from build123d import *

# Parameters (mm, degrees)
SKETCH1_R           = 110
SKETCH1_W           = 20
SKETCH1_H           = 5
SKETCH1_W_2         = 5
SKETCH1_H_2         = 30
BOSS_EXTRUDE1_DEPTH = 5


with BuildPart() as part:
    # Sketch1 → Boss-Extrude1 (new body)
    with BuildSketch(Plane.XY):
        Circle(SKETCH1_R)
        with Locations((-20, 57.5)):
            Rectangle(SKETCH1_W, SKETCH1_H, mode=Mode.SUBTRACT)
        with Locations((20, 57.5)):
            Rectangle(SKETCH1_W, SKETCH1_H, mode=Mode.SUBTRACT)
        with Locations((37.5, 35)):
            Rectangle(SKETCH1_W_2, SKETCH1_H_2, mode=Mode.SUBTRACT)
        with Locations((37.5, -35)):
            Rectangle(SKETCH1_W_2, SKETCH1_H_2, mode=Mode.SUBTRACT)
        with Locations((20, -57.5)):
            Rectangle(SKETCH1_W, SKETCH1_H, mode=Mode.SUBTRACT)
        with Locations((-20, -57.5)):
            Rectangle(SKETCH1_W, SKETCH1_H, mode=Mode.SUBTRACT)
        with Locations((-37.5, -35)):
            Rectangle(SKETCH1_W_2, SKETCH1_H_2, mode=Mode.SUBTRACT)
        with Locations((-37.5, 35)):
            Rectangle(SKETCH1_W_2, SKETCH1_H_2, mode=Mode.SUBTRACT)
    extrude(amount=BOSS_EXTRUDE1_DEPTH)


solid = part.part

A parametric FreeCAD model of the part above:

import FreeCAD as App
import Part
import Sketcher

V = App.Vector
Q = App.Units.Quantity

doc = App.newDocument("Part")
body = doc.addObject("PartDesign::Body", "Body")

# Sketch on XY plane
sketch1 = body.newObject("Sketcher::SketchObject", "Sketch")
sketch1.AttachmentSupport = (doc.getObject("XY_Plane"), [""])
sketch1.MapMode = "FlatFace"
sketch1.addGeometry(Part.Circle(V(0, 0, 0), V(0, 0, 1), 110), False)
sketch1.addGeometry(Part.LineSegment(V(-35, -50, 0), V(-40, -50, 0)), False)
sketch1.addGeometry(Part.LineSegment(V(-40, -50, 0), V(-40, -20, 0)), False)
sketch1.addGeometry(Part.LineSegment(V(-40, -20, 0), V(-35, -20, 0)), False)
sketch1.addGeometry(Part.LineSegment(V(-35, -20, 0), V(-35, -50, 0)), False)
sketch1.addGeometry(Part.LineSegment(V(-10, -60, 0), V(-30, -60, 0)), False)
sketch1.addGeometry(Part.LineSegment(V(-30, -60, 0), V(-30, -55, 0)), False)
sketch1.addGeometry(Part.LineSegment(V(-30, -55, 0), V(-10, -55, 0)), False)
sketch1.addGeometry(Part.LineSegment(V(-10, -55, 0), V(-10, -60, 0)), False)
sketch1.addGeometry(Part.LineSegment(V(30, -60, 0), V(10, -60, 0)), False)
sketch1.addGeometry(Part.LineSegment(V(10, -60, 0), V(10, -55, 0)), False)
sketch1.addGeometry(Part.LineSegment(V(10, -55, 0), V(30, -55, 0)), False)
sketch1.addGeometry(Part.LineSegment(V(30, -55, 0), V(30, -60, 0)), False)
sketch1.addGeometry(Part.LineSegment(V(40, -50, 0), V(35, -50, 0)), False)
sketch1.addGeometry(Part.LineSegment(V(35, -50, 0), V(35, -20, 0)), False)
sketch1.addGeometry(Part.LineSegment(V(35, -20, 0), V(40, -20, 0)), False)
sketch1.addGeometry(Part.LineSegment(V(40, -20, 0), V(40, -50, 0)), False)
sketch1.addGeometry(Part.LineSegment(V(-35, 20, 0), V(-40, 20, 0)), False)
sketch1.addGeometry(Part.LineSegment(V(-40, 20, 0), V(-40, 50, 0)), False)
sketch1.addGeometry(Part.LineSegment(V(-40, 50, 0), V(-35, 50, 0)), False)
sketch1.addGeometry(Part.LineSegment(V(-35, 50, 0), V(-35, 20, 0)), False)
sketch1.addGeometry(Part.LineSegment(V(-10, 55, 0), V(-30, 55, 0)), False)
sketch1.addGeometry(Part.LineSegment(V(-30, 55, 0), V(-30, 60, 0)), False)
sketch1.addGeometry(Part.LineSegment(V(-30, 60, 0), V(-10, 60, 0)), False)
sketch1.addGeometry(Part.LineSegment(V(-10, 60, 0), V(-10, 55, 0)), False)
sketch1.addGeometry(Part.LineSegment(V(40, 20, 0), V(35, 20, 0)), False)
sketch1.addGeometry(Part.LineSegment(V(35, 20, 0), V(35, 50, 0)), False)
sketch1.addGeometry(Part.LineSegment(V(35, 50, 0), V(40, 50, 0)), False)
sketch1.addGeometry(Part.LineSegment(V(40, 50, 0), V(40, 20, 0)), False)
sketch1.addGeometry(Part.LineSegment(V(30, 55, 0), V(10, 55, 0)), False)
sketch1.addGeometry(Part.LineSegment(V(10, 55, 0), V(10, 60, 0)), False)
sketch1.addGeometry(Part.LineSegment(V(10, 60, 0), V(30, 60, 0)), False)
sketch1.addGeometry(Part.LineSegment(V(30, 60, 0), V(30, 55, 0)), False)
sketch1.addConstraint(Sketcher.Constraint("Coincident", 1, 2, 2, 1))
sketch1.addConstraint(Sketcher.Constraint("Coincident", 2, 2, 3, 1))
sketch1.addConstraint(Sketcher.Constraint("Coincident", 3, 2, 4, 1))
sketch1.addConstraint(Sketcher.Constraint("Coincident", 4, 2, 1, 1))
sketch1.addConstraint(Sketcher.Constraint("Coincident", 5, 2, 6, 1))
sketch1.addConstraint(Sketcher.Constraint("Coincident", 6, 2, 7, 1))
sketch1.addConstraint(Sketcher.Constraint("Coincident", 7, 2, 8, 1))
sketch1.addConstraint(Sketcher.Constraint("Coincident", 8, 2, 5, 1))
sketch1.addConstraint(Sketcher.Constraint("Coincident", 9, 2, 10, 1))
sketch1.addConstraint(Sketcher.Constraint("Coincident", 10, 2, 11, 1))
sketch1.addConstraint(Sketcher.Constraint("Coincident", 11, 2, 12, 1))
sketch1.addConstraint(Sketcher.Constraint("Coincident", 12, 2, 9, 1))
sketch1.addConstraint(Sketcher.Constraint("Coincident", 13, 2, 14, 1))
sketch1.addConstraint(Sketcher.Constraint("Coincident", 14, 2, 15, 1))
sketch1.addConstraint(Sketcher.Constraint("Coincident", 15, 2, 16, 1))
sketch1.addConstraint(Sketcher.Constraint("Coincident", 16, 2, 13, 1))
sketch1.addConstraint(Sketcher.Constraint("Coincident", 17, 2, 18, 1))
sketch1.addConstraint(Sketcher.Constraint("Coincident", 18, 2, 19, 1))
sketch1.addConstraint(Sketcher.Constraint("Coincident", 19, 2, 20, 1))
sketch1.addConstraint(Sketcher.Constraint("Coincident", 20, 2, 17, 1))
sketch1.addConstraint(Sketcher.Constraint("Coincident", 21, 2, 22, 1))
sketch1.addConstraint(Sketcher.Constraint("Coincident", 22, 2, 23, 1))
sketch1.addConstraint(Sketcher.Constraint("Coincident", 23, 2, 24, 1))
sketch1.addConstraint(Sketcher.Constraint("Coincident", 24, 2, 21, 1))
sketch1.addConstraint(Sketcher.Constraint("Coincident", 25, 2, 26, 1))
sketch1.addConstraint(Sketcher.Constraint("Coincident", 26, 2, 27, 1))
sketch1.addConstraint(Sketcher.Constraint("Coincident", 27, 2, 28, 1))
sketch1.addConstraint(Sketcher.Constraint("Coincident", 28, 2, 25, 1))
sketch1.addConstraint(Sketcher.Constraint("Coincident", 29, 2, 30, 1))
sketch1.addConstraint(Sketcher.Constraint("Coincident", 30, 2, 31, 1))
sketch1.addConstraint(Sketcher.Constraint("Coincident", 31, 2, 32, 1))
sketch1.addConstraint(Sketcher.Constraint("Coincident", 32, 2, 29, 1))
sketch1.addConstraint(Sketcher.Constraint("Horizontal", 1))
sketch1.addConstraint(Sketcher.Constraint("Vertical", 2))
sketch1.addConstraint(Sketcher.Constraint("Horizontal", 3))
sketch1.addConstraint(Sketcher.Constraint("Vertical", 4))
sketch1.addConstraint(Sketcher.Constraint("Horizontal", 5))
sketch1.addConstraint(Sketcher.Constraint("Vertical", 6))
sketch1.addConstraint(Sketcher.Constraint("Horizontal", 7))
sketch1.addConstraint(Sketcher.Constraint("Vertical", 8))
sketch1.addConstraint(Sketcher.Constraint("Horizontal", 9))
sketch1.addConstraint(Sketcher.Constraint("Vertical", 10))
sketch1.addConstraint(Sketcher.Constraint("Horizontal", 11))
sketch1.addConstraint(Sketcher.Constraint("Vertical", 12))
sketch1.addConstraint(Sketcher.Constraint("Horizontal", 13))
sketch1.addConstraint(Sketcher.Constraint("Vertical", 14))
sketch1.addConstraint(Sketcher.Constraint("Horizontal", 15))
sketch1.addConstraint(Sketcher.Constraint("Vertical", 16))
sketch1.addConstraint(Sketcher.Constraint("Horizontal", 17))
sketch1.addConstraint(Sketcher.Constraint("Vertical", 18))
sketch1.addConstraint(Sketcher.Constraint("Horizontal", 19))
sketch1.addConstraint(Sketcher.Constraint("Vertical", 20))
sketch1.addConstraint(Sketcher.Constraint("Horizontal", 21))
sketch1.addConstraint(Sketcher.Constraint("Vertical", 22))
sketch1.addConstraint(Sketcher.Constraint("Horizontal", 23))
sketch1.addConstraint(Sketcher.Constraint("Vertical", 24))
sketch1.addConstraint(Sketcher.Constraint("Horizontal", 25))
sketch1.addConstraint(Sketcher.Constraint("Vertical", 26))
sketch1.addConstraint(Sketcher.Constraint("Horizontal", 27))
sketch1.addConstraint(Sketcher.Constraint("Vertical", 28))
sketch1.addConstraint(Sketcher.Constraint("Horizontal", 29))
sketch1.addConstraint(Sketcher.Constraint("Vertical", 30))
sketch1.addConstraint(Sketcher.Constraint("Horizontal", 31))
sketch1.addConstraint(Sketcher.Constraint("Vertical", 32))
sketch1.addConstraint(Sketcher.Constraint("Coincident", 0, 3, -1, 1))
sketch1.addConstraint(Sketcher.Constraint("Symmetric", 15, 2, 17, 2, -1, 1))
sketch1.addConstraint(Sketcher.Constraint("Symmetric", 13, 2, 19, 2, -1, 1))
sketch1.addConstraint(Sketcher.Constraint("Symmetric", 11, 2, 21, 2, -1, 1))
sketch1.addConstraint(Sketcher.Constraint("Symmetric", 9, 2, 23, 2, -1, 1))
sketch1.addConstraint(Sketcher.Constraint("Symmetric", 3, 2, 25, 2, -1, 1))
sketch1.addConstraint(Sketcher.Constraint("Symmetric", 1, 2, 27, 2, -1, 1))
sketch1.addConstraint(Sketcher.Constraint("Symmetric", 7, 2, 29, 2, -1, 1))
sketch1.addConstraint(Sketcher.Constraint("Symmetric", 5, 2, 31, 2, -1, 1))
sketch1.addConstraint(Sketcher.Constraint("Symmetric", 8, 2, 9, 2, -2))
sketch1.addConstraint(Sketcher.Constraint("Symmetric", 6, 2, 11, 2, -2))
sketch1.addConstraint(Sketcher.Constraint("Symmetric", 4, 2, 13, 2, -2))
sketch1.addConstraint(Sketcher.Constraint("Symmetric", 2, 2, 15, 2, -2))
sketch1.addConstraint(Sketcher.Constraint("Equal", 27, 6))
sketch1.addConstraint(Sketcher.Constraint("Diameter", 0, Q("220 mm")))
sketch1.addConstraint(Sketcher.Constraint("DistanceX", 1, 2, 1, 1, Q("5 mm")))
sketch1.addConstraint(Sketcher.Constraint("DistanceX", 5, 2, 5, 1, Q("20 mm")))
sketch1.addConstraint(Sketcher.Constraint("DistanceY", 2, 1, 2, 2, Q("30 mm")))
sketch1.addConstraint(Sketcher.Constraint("DistanceX", 1, 2, -1, 1, Q("40 mm")))
sketch1.addConstraint(Sketcher.Constraint("DistanceY", 1, 2, -1, 1, Q("50 mm")))
sketch1.addConstraint(Sketcher.Constraint("DistanceX", 5, 2, -1, 1, Q("30 mm")))
sketch1.addConstraint(Sketcher.Constraint("DistanceY", 5, 2, -1, 1, Q("60 mm")))
pad1 = body.newObject("PartDesign::Pad", "Pad")
pad1.Profile = sketch1
pad1.Length = 5

doc.recompute()
